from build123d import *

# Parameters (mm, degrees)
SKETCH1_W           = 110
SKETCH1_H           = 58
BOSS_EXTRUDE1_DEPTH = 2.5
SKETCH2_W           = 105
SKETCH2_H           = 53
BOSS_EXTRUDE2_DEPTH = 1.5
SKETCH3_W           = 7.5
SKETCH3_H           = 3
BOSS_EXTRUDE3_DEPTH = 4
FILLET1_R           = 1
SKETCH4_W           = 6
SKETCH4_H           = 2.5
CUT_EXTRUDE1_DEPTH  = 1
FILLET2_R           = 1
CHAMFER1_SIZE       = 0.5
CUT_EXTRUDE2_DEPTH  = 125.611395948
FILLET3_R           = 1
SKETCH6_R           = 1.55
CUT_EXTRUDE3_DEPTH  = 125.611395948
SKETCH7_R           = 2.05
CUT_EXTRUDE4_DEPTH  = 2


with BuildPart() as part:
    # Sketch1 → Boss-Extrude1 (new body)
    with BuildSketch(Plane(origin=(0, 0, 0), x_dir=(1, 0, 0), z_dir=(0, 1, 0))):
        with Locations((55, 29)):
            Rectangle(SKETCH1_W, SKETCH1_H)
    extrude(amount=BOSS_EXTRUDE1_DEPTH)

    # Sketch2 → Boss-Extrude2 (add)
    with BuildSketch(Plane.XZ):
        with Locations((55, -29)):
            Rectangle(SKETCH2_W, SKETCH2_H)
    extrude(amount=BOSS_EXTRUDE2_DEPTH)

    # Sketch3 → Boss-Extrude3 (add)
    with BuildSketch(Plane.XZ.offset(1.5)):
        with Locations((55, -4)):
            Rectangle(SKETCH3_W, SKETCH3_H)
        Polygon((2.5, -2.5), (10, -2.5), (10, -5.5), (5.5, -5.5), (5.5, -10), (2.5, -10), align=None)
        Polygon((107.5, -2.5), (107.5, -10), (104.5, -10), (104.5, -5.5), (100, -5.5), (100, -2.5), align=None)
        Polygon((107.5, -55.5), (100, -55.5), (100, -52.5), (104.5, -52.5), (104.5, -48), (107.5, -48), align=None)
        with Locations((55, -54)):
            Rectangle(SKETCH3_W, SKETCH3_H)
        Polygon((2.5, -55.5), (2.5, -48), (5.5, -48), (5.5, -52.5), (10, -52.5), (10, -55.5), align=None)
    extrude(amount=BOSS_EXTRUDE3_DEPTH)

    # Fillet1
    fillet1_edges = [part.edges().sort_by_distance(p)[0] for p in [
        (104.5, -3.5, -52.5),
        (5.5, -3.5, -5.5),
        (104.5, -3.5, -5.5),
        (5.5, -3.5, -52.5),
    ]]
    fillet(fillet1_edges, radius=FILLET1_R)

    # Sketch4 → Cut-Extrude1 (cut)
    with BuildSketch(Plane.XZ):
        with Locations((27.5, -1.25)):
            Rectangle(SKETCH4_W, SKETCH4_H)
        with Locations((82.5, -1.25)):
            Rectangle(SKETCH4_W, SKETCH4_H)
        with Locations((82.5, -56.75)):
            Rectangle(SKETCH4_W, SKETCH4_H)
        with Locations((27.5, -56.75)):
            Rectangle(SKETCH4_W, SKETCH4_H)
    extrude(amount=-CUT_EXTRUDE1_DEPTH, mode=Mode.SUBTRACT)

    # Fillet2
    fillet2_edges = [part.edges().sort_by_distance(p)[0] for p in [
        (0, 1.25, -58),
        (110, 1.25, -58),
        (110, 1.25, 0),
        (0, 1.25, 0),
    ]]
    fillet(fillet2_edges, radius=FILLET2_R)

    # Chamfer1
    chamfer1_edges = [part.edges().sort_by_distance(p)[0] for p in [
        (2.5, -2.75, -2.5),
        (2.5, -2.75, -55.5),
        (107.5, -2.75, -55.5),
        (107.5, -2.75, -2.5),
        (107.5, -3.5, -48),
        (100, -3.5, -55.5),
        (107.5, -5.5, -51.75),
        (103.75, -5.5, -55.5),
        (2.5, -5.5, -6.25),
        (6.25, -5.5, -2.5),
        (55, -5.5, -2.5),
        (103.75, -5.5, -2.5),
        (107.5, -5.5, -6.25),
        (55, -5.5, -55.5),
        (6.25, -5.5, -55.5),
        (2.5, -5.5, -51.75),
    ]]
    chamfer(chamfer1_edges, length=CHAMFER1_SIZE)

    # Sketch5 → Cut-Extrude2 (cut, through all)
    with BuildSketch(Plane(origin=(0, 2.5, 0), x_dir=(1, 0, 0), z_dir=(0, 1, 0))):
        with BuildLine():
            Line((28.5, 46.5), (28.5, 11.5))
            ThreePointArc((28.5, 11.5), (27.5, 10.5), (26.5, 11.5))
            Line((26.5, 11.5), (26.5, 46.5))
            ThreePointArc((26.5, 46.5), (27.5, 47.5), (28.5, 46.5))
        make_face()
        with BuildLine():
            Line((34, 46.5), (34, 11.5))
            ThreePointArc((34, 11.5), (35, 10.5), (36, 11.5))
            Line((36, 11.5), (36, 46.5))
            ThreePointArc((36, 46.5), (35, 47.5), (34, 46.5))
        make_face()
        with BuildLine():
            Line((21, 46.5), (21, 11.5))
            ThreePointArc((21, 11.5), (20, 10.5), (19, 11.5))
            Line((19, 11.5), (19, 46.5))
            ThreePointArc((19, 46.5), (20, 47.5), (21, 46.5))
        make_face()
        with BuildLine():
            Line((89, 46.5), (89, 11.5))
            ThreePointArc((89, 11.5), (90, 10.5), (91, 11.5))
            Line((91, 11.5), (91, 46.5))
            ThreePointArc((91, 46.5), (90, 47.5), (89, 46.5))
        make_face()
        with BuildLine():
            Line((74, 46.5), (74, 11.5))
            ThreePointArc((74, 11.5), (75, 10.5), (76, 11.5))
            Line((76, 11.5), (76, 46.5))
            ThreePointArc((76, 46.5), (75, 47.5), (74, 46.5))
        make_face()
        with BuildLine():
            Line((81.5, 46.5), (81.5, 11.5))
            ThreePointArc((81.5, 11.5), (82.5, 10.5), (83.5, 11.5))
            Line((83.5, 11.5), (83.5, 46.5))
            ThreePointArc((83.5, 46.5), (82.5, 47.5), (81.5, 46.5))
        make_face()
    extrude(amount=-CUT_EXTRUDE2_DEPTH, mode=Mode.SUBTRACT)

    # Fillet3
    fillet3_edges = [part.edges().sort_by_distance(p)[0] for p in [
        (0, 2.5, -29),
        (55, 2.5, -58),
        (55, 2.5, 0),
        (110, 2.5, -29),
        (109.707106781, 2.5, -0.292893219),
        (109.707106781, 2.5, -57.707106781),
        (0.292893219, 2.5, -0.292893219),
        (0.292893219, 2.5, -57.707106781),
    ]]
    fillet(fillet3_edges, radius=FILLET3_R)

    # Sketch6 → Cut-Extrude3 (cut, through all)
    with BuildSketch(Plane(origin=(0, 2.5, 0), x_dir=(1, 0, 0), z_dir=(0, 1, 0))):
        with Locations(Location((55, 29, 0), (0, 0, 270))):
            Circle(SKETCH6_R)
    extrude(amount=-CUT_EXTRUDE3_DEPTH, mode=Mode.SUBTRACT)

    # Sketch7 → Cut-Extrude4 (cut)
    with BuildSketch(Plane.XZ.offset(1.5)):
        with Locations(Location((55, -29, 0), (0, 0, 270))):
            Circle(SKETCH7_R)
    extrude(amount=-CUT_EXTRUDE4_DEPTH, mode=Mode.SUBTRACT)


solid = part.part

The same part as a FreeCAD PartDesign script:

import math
import FreeCAD as App
import Part
import Sketcher


def edges_at(feature, points):
    """Names of the edges that pass closest to the given points."""
    edges = feature.Shape.Edges
    near = lambda p: min(range(len(edges)), key=lambda i: edges[i].distToShape(Part.Vertex(*p))[0])
    return sorted({f"Edge{near(p) + 1}" for p in points})

doc = App.newDocument("Part")
body = doc.addObject("PartDesign::Body", "Body")

# Sketch on XZ plane
sketch1 = body.newObject("Sketcher::SketchObject", "Sketch")
sketch1.AttachmentSupport = (doc.getObject("XZ_Plane"), [""])
sketch1.MapMode = "FlatFace"
sketch1.addGeometry(Part.LineSegment(App.Vector(0, -58, 0), App.Vector(0, 0, 0)), False)
sketch1.addGeometry(Part.LineSegment(App.Vector(0, 0, 0), App.Vector(110, 0, 0)), False)
sketch1.addGeometry(Part.LineSegment(App.Vector(110, 0, 0), App.Vector(110, -58, 0)), False)
sketch1.addGeometry(Part.LineSegment(App.Vector(110, -58, 0), App.Vector(0, -58, 0)), False)
sketch1.addConstraint(Sketcher.Constraint("Coincident", 0, 2, 1, 1))
sketch1.addConstraint(Sketcher.Constraint("Coincident", 1, 2, 2, 1))
sketch1.addConstraint(Sketcher.Constraint("Coincident", 2, 2, 3, 1))
sketch1.addConstraint(Sketcher.Constraint("Coincident", 3, 2, 0, 1))
sketch1.addConstraint(Sketcher.Constraint("Vertical", 0))
sketch1.addConstraint(Sketcher.Constraint("Horizontal", 1))
sketch1.addConstraint(Sketcher.Constraint("Vertical", 2))
sketch1.addConstraint(Sketcher.Constraint("Horizontal", 3))
sketch1.addConstraint(Sketcher.Constraint("Coincident", 0, 2, -1, 1))
sketch1.addConstraint(Sketcher.Constraint("DistanceX", 1, 1, 1, 2, 110.0))
sketch1.addConstraint(Sketcher.Constraint("DistanceY", 0, 1, 0, 2, 58.0))
pad1 = body.newObject("PartDesign::Pad", "Pad")
pad1.Profile = sketch1
pad1.Length = 2.5
pad1.Reversed = True

# Sketch on XZ plane
sketch2 = body.newObject("Sketcher::SketchObject", "Sketch001")
sketch2.AttachmentSupport = (doc.getObject("XZ_Plane"), [""])
sketch2.MapMode = "FlatFace"
sketch2.addGeometry(Part.LineSegment(App.Vector(2, -2, 0), App.Vector(2, -56, 0)), False)
sketch2.addGeometry(Part.LineSegment(App.Vector(2, -56, 0), App.Vector(108, -56, 0)), False)
sketch2.addGeometry(Part.LineSegment(App.Vector(108, -56, 0), App.Vector(108, -2, 0)), False)
sketch2.addGeometry(Part.LineSegment(App.Vector(108, -2, 0), App.Vector(2, -2, 0)), False)
sketch2.addConstraint(Sketcher.Constraint("Coincident", 0, 2, 1, 1))
sketch2.addConstraint(Sketcher.Constraint("Coincident", 1, 2, 2, 1))
sketch2.addConstraint(Sketcher.Constraint("Coincident", 2, 2, 3, 1))
sketch2.addConstraint(Sketcher.Constraint("Coincident", 3, 2, 0, 1))
sketch2.addConstraint(Sketcher.Constraint("Vertical", 0))
sketch2.addConstraint(Sketcher.Constraint("Horizontal", 1))
sketch2.addConstraint(Sketcher.Constraint("Vertical", 2))
sketch2.addConstraint(Sketcher.Constraint("Horizontal", 3))
sketch2.addConstraint(Sketcher.Constraint("DistanceX", 1, 1, 1, 2, 105.0))
sketch2.addConstraint(Sketcher.Constraint("DistanceY", 0, 2, 0, 1, 53.0))
sketch2.addConstraint(Sketcher.Constraint("DistanceX", -1, 1, 0, 2, 2.5))
sketch2.addConstraint(Sketcher.Constraint("DistanceY", 0, 2, -1, 1, 55.5))
pad2 = body.newObject("PartDesign::Pad", "Pad001")
pad2.Profile = sketch2
pad2.Length = 1.5

# Sketch on XZ plane
sketch3 = body.newObject("Sketcher::SketchObject", "Sketch002")
sketch3.AttachmentSupport = (doc.getObject("XZ_Plane"), [""])
sketch3.MapMode = "FlatFace"
sketch3.AttachmentOffset = App.Placement(App.Vector(0, 0, 1.5), App.Rotation())
sketch3.addGeometry(Part.LineSegment(App.Vector(51.2, -2.5, 0), App.Vector(51.2, -5.5, 0)), False)
sketch3.addGeometry(Part.LineSegment(App.Vector(51.2, -5.5, 0), App.Vector(58.8, -5.5, 0)), False)
sketch3.addGeometry(Part.LineSegment(App.Vector(58.8, -5.5, 0), App.Vector(58.8, -2.5, 0)), False)
sketch3.addGeometry(Part.LineSegment(App.Vector(58.8, -2.5, 0), App.Vector(51.2, -2.5, 0)), False)
sketch3.addGeometry(Part.LineSegment(App.Vector(10, -2.5, 0), App.Vector(2.5, -2.5, 0)), False)
sketch3.addGeometry(Part.LineSegment(App.Vector(2.5, -2.5, 0), App.Vector(2.5, -10, 0)), False)
sketch3.addGeometry(Part.LineSegment(App.Vector(2.5, -10, 0), App.Vector(5.5, -10, 0)), False)
sketch3.addGeometry(Part.LineSegment(App.Vector(5.5, -10, 0), App.Vector(5.5, -5.5, 0)), False)
sketch3.addGeometry(Part.LineSegment(App.Vector(5.5, -5.5, 0), App.Vector(10, -5.5, 0)), False)
sketch3.addGeometry(Part.LineSegment(App.Vector(10, -5.5, 0), App.Vector(10, -2.5, 0)), False)
sketch3.addGeometry(Part.LineSegment(App.Vector(107.5, -10, 0), App.Vector(107.5, -2.5, 0)), False)
sketch3.addGeometry(Part.LineSegment(App.Vector(107.5, -2.5, 0), App.Vector(100, -2.5, 0)), False)
sketch3.addGeometry(Part.LineSegment(App.Vector(100, -2.5, 0), App.Vector(100, -5.5, 0)), False)
sketch3.addGeometry(Part.LineSegment(App.Vector(100, -5.5, 0), App.Vector(104.5, -5.5, 0)), False)
sketch3.addGeometry(Part.LineSegment(App.Vector(104.5, -5.5, 0), App.Vector(104.5, -10, 0)), False)
sketch3.addGeometry(Part.LineSegment(App.Vector(104.5, -10, 0), App.Vector(107.5, -10, 0)), False)
sketch3.addGeometry(Part.LineSegment(App.Vector(100, -55.5, 0), App.Vector(107.5, -55.5, 0)), False)
sketch3.addGeometry(Part.LineSegment(App.Vector(107.5, -55.5, 0), App.Vector(107.5, -48, 0)), False)
sketch3.addGeometry(Part.LineSegment(App.Vector(107.5, -48, 0), App.Vector(104.5, -48, 0)), False)
sketch3.addGeometry(Part.LineSegment(App.Vector(104.5, -48, 0), App.Vector(104.5, -52.5, 0)), False)
sketch3.addGeometry(Part.LineSegment(App.Vector(104.5, -52.5, 0), App.Vector(100, -52.5, 0)), False)
sketch3.addGeometry(Part.LineSegment(App.Vector(100, -52.5, 0), App.Vector(100, -55.5, 0)), False)
sketch3.addGeometry(Part.LineSegment(App.Vector(51.2, -52.5, 0), App.Vector(51.2, -55.5, 0)), False)
sketch3.addGeometry(Part.LineSegment(App.Vector(51.2, -55.5, 0), App.Vector(58.8, -55.5, 0)), False)
sketch3.addGeometry(Part.LineSegment(App.Vector(58.8, -55.5, 0), App.Vector(58.8, -52.5, 0)), False)
sketch3.addGeometry(Part.LineSegment(App.Vector(58.8, -52.5, 0), App.Vector(51.2, -52.5, 0)), False)
sketch3.addGeometry(Part.LineSegment(App.Vector(2.5, -48, 0), App.Vector(2.5, -55.5, 0)), False)
sketch3.addGeometry(Part.LineSegment(App.Vector(2.5, -55.5, 0), App.Vector(10, -55.5, 0)), False)
sketch3.addGeometry(Part.LineSegment(App.Vector(10, -55.5, 0), App.Vector(10, -52.5, 0)), False)
sketch3.addGeometry(Part.LineSegment(App.Vector(10, -52.5, 0), App.Vector(5.5, -52.5, 0)), False)
sketch3.addGeometry(Part.LineSegment(App.Vector(5.5, -52.5, 0), App.Vector(5.5, -48, 0)), False)
sketch3.addGeometry(Part.LineSegment(App.Vector(5.5, -48, 0), App.Vector(2.5, -48, 0)), False)
sketch3.addConstraint(Sketcher.Constraint("Coincident", 0, 2, 1, 1))
sketch3.addConstraint(Sketcher.Constraint("Coincident", 1, 2, 2, 1))
sketch3.addConstraint(Sketcher.Constraint("Coincident", 2, 2, 3, 1))
sketch3.addConstraint(Sketcher.Constraint("Coincident", 3, 2, 0, 1))
sketch3.addConstraint(Sketcher.Constraint("Coincident", 4, 2, 5, 1))
sketch3.addConstraint(Sketcher.Constraint("Coincident", 5, 2, 6, 1))
sketch3.addConstraint(Sketcher.Constraint("Coincident", 6, 2, 7, 1))
sketch3.addConstraint(Sketcher.Constraint("Coincident", 7, 2, 8, 1))
sketch3.addConstraint(Sketcher.Constraint("Coincident", 8, 2, 9, 1))
sketch3.addConstraint(Sketcher.Constraint("Coincident", 9, 2, 4, 1))
sketch3.addConstraint(Sketcher.Constraint("Coincident", 10, 2, 11, 1))
sketch3.addConstraint(Sketcher.Constraint("Coincident", 11, 2, 12, 1))
sketch3.addConstraint(Sketcher.Constraint("Coincident", 12, 2, 13, 1))
sketch3.addConstraint(Sketcher.Constraint("Coincident", 13, 2, 14, 1))
sketch3.addConstraint(Sketcher.Constraint("Coincident", 14, 2, 15, 1))
sketch3.addConstraint(Sketcher.Constraint("Coincident", 15, 2, 10, 1))
sketch3.addConstraint(Sketcher.Constraint("Coincident", 16, 2, 17, 1))
sketch3.addConstraint(Sketcher.Constraint("Coincident", 17, 2, 18, 1))
sketch3.addConstraint(Sketcher.Constraint("Coincident", 18, 2, 19, 1))
sketch3.addConstraint(Sketcher.Constraint("Coincident", 19, 2, 20, 1))
sketch3.addConstraint(Sketcher.Constraint("Coincident", 20, 2, 21, 1))
sketch3.addConstraint(Sketcher.Constraint("Coincident", 21, 2, 16, 1))
sketch3.addConstraint(Sketcher.Constraint("Coincident", 22, 2, 23, 1))
sketch3.addConstraint(Sketcher.Constraint("Coincident", 23, 2, 24, 1))
sketch3.addConstraint(Sketcher.Constraint("Coincident", 24, 2, 25, 1))
sketch3.addConstraint(Sketcher.Constraint("Coincident", 25, 2, 22, 1))
sketch3.addConstraint(Sketcher.Constraint("Coincident", 26, 2, 27, 1))
sketch3.addConstraint(Sketcher.Constraint("Coincident", 27, 2, 28, 1))
sketch3.addConstraint(Sketcher.Constraint("Coincident", 28, 2, 29, 1))
sketch3.addConstraint(Sketcher.Constraint("Coincident", 29, 2, 30, 1))
sketch3.addConstraint(Sketcher.Constraint("Coincident", 30, 2, 31, 1))
sketch3.addConstraint(Sketcher.Constraint("Coincident", 31, 2, 26, 1))
sketch3.addConstraint(Sketcher.Constraint("Vertical", 0))
sketch3.addConstraint(Sketcher.Constraint("Horizontal", 1))
sketch3.addConstraint(Sketcher.Constraint("Vertical", 2))
sketch3.addConstraint(Sketcher.Constraint("Horizontal", 3))
sketch3.addConstraint(Sketcher.Constraint("Horizontal", 4))
sketch3.addConstraint(Sketcher.Constraint("Vertical", 5))
sketch3.addConstraint(Sketcher.Constraint("Horizontal", 6))
sketch3.addConstraint(Sketcher.Constraint("Vertical", 7))
sketch3.addConstraint(Sketcher.Constraint("Horizontal", 8))
sketch3.addConstraint(Sketcher.Constraint("Vertical", 9))
sketch3.addConstraint(Sketcher.Constraint("Vertical", 10))
sketch3.addConstraint(Sketcher.Constraint("Horizontal", 11))
sketch3.addConstraint(Sketcher.Constraint("Vertical", 12))
sketch3.addConstraint(Sketcher.Constraint("Horizontal", 13))
sketch3.addConstraint(Sketcher.Constraint("Vertical", 14))
sketch3.addConstraint(Sketcher.Constraint("Horizontal", 15))
sketch3.addConstraint(Sketcher.Constraint("Horizontal", 16))
sketch3.addConstraint(Sketcher.Constraint("Vertical", 17))
sketch3.addConstraint(Sketcher.Constraint("Horizontal", 18))
sketch3.addConstraint(Sketcher.Constraint("Vertical", 19))
sketch3.addConstraint(Sketcher.Constraint("Horizontal", 20))
sketch3.addConstraint(Sketcher.Constraint("Vertical", 21))
sketch3.addConstraint(Sketcher.Constraint("Vertical", 22))
sketch3.addConstraint(Sketcher.Constraint("Horizontal", 23))
sketch3.addConstraint(Sketcher.Constraint("Vertical", 24))
sketch3.addConstraint(Sketcher.Constraint("Horizontal", 25))
sketch3.addConstraint(Sketcher.Constraint("Vertical", 26))
sketch3.addConstraint(Sketcher.Constraint("Horizontal", 27))
sketch3.addConstraint(Sketcher.Constraint("Vertical", 28))
sketch3.addConstraint(Sketcher.Constraint("Horizontal", 29))
sketch3.addConstraint(Sketcher.Constraint("Vertical", 30))
sketch3.addConstraint(Sketcher.Constraint("Horizontal", 31))
sketch3.addConstraint(Sketcher.Constraint("Horizontal", 3, 2, 4, 2))
sketch3.addConstraint(Sketcher.Constraint("Horizontal", 1, 2, 7, 2))
sketch3.addConstraint(Sketcher.Constraint("Horizontal", 9, 2, 10, 2))
sketch3.addConstraint(Sketcher.Constraint("Horizontal", 8, 2, 12, 2))
sketch3.addConstraint(Sketcher.Constraint("Horizontal", 6, 2, 14, 2))
sketch3.addConstraint(Sketcher.Constraint("Horizontal", 21, 2, 22, 2))
sketch3.addConstraint(Sketcher.Constraint("Horizontal", 20, 2, 24, 2))
sketch3.addConstraint(Sketcher.Constraint("Horizontal", 23, 2, 26, 2))
sketch3.addConstraint(Sketcher.Constraint("Horizontal", 25, 2, 28, 2))
sketch3.addConstraint(Sketcher.Constraint("Horizontal", 18, 2, 30, 2))
sketch3.addConstraint(Sketcher.Constraint("Vertical", 15, 2, 16, 2))
sketch3.addConstraint(Sketcher.Constraint("Vertical", 14, 2, 18, 2))
sketch3.addConstraint(Sketcher.Constraint("Vertical", 12, 2, 20, 2))
sketch3.addConstraint(Sketcher.Constraint("Vertical", 3, 2, 22, 2))
sketch3.addConstraint(Sketcher.Constraint("Vertical", 2, 2, 23, 2))
sketch3.addConstraint(Sketcher.Constraint("Vertical", 5, 2, 26, 2))
sketch3.addConstraint(Sketcher.Constraint("Vertical", 9, 2, 27, 2))
sketch3.addConstraint(Sketcher.Constraint("Vertical", 7, 2, 29, 2))
sketch3.addConstraint(Sketcher.Constraint("Equal", 3, 4))
sketch3.addConstraint(Sketcher.Constraint("Equal", 4, 11))
sketch3.addConstraint(Sketcher.Constraint("Equal", 8, 13))
sketch3.addConstraint(Sketcher.Constraint("Equal", 31, 0))
sketch3.addConstraint(Sketcher.Constraint("Equal", 27, 5))
sketch3.addConstraint(Sketcher.Constraint("Equal", 10, 17))
sketch3.addConstraint(Sketcher.Constraint("Equal", 14, 19))
sketch3.addConstraint(Sketcher.Constraint("DistanceX", 6, 1, 6, 2, 3.0))
sketch3.addConstraint(Sketcher.Constraint("DistanceX", 1, 1, 1, 2, 7.5))
sketch3.addConstraint(Sketcher.Constraint("DistanceY", 5, 2, -1, 1, 10.0))
sketch3.addConstraint(Sketcher.Constraint("DistanceX", -1, 1, 8, 2, 10.0))
sketch3.addConstraint(Sketcher.Constraint("DistanceX", -1, 1, 11, 2, 100.0))
sketch3.addConstraint(Sketcher.Constraint("DistanceY", 17, 2, -1, 1, 48.0))
sketch3.addConstraint(Sketcher.Constraint("DistanceX", -1, 1, 0, 2, 51.25))
pad3 = body.newObject("PartDesign::Pad", "Pad002")
pad3.Profile = sketch3
pad3.Length = 4
doc.recompute()

fillet = body.newObject("PartDesign::Fillet", "Fillet")
fillet.Base = (pad3, edges_at(pad3, [
    (104.5, -3.5, -52.5),
    (5.5, -3.5, -5.5),
    (104.5, -3.5, -5.5),
    (5.5, -3.5, -52.5),
]))
fillet.Radius = 1

# Sketch on XZ plane
sketch4 = body.newObject("Sketcher::SketchObject", "Sketch003")
sketch4.AttachmentSupport = (doc.getObject("XZ_Plane"), [""])
sketch4.MapMode = "FlatFace"
sketch4.addGeometry(Part.LineSegment(App.Vector(24.5, 0, 0), App.Vector(24.5, -2.5, 0)), False)
sketch4.addGeometry(Part.LineSegment(App.Vector(24.5, -2.5, 0), App.Vector(30.5, -2.5, 0)), False)
sketch4.addGeometry(Part.LineSegment(App.Vector(30.5, -2.5, 0), App.Vector(30.5, 0, 0)), False)
sketch4.addGeometry(Part.LineSegment(App.Vector(30.5, 0, 0), App.Vector(24.5, 0, 0)), False)
sketch4.addGeometry(Part.LineSegment(App.Vector(79.5, 0, 0), App.Vector(79.5, -2.5, 0)), False)
sketch4.addGeometry(Part.LineSegment(App.Vector(79.5, -2.5, 0), App.Vector(85.5, -2.5, 0)), False)
sketch4.addGeometry(Part.LineSegment(App.Vector(85.5, -2.5, 0), App.Vector(85.5, 0, 0)), False)
sketch4.addGeometry(Part.LineSegment(App.Vector(85.5, 0, 0), App.Vector(79.5, 0, 0)), False)
sketch4.addGeometry(Part.LineSegment(App.Vector(79.5, -55.5, 0), App.Vector(79.5, -58, 0)), False)
sketch4.addGeometry(Part.LineSegment(App.Vector(79.5, -58, 0), App.Vector(85.5, -58, 0)), False)
sketch4.addGeometry(Part.LineSegment(App.Vector(85.5, -58, 0), App.Vector(85.5, -55.5, 0)), False)
sketch4.addGeometry(Part.LineSegment(App.Vector(85.5, -55.5, 0), App.Vector(79.5, -55.5, 0)), False)
sketch4.addGeometry(Part.LineSegment(App.Vector(24.5, -55.5, 0), App.Vector(24.5, -58, 0)), False)
sketch4.addGeometry(Part.LineSegment(App.Vector(24.5, -58, 0), App.Vector(30.5, -58, 0)), False)
sketch4.addGeometry(Part.LineSegment(App.Vector(30.5, -58, 0), App.Vector(30.5, -55.5, 0)), False)
sketch4.addGeometry(Part.LineSegment(App.Vector(30.5, -55.5, 0), App.Vector(24.5, -55.5, 0)), False)
sketch4.addConstraint(Sketcher.Constraint("Coincident", 0, 2, 1, 1))
sketch4.addConstraint(Sketcher.Constraint("Coincident", 1, 2, 2, 1))
sketch4.addConstraint(Sketcher.Constraint("Coincident", 2, 2, 3, 1))
sketch4.addConstraint(Sketcher.Constraint("Coincident", 3, 2, 0, 1))
sketch4.addConstraint(Sketcher.Constraint("Coincident", 4, 2, 5, 1))
sketch4.addConstraint(Sketcher.Constraint("Coincident", 5, 2, 6, 1))
sketch4.addConstraint(Sketcher.Constraint("Coincident", 6, 2, 7, 1))
sketch4.addConstraint(Sketcher.Constraint("Coincident", 7, 2, 4, 1))
sketch4.addConstraint(Sketcher.Constraint("Coincident", 8, 2, 9, 1))
sketch4.addConstraint(Sketcher.Constraint("Coincident", 9, 2, 10, 1))
sketch4.addConstraint(Sketcher.Constraint("Coincident", 10, 2, 11, 1))
sketch4.addConstraint(Sketcher.Constraint("Coincident", 11, 2, 8, 1))
sketch4.addConstraint(Sketcher.Constraint("Coincident", 12, 2, 13, 1))
sketch4.addConstraint(Sketcher.Constraint("Coincident", 13, 2, 14, 1))
sketch4.addConstraint(Sketcher.Constraint("Coincident", 14, 2, 15, 1))
sketch4.addConstraint(Sketcher.Constraint("Coincident", 15, 2, 12, 1))
sketch4.addConstraint(Sketcher.Constraint("Vertical", 0))
sketch4.addConstraint(Sketcher.Constraint("Horizontal", 1))
sketch4.addConstraint(Sketcher.Constraint("Vertical", 2))
sketch4.addConstraint(Sketcher.Constraint("Horizontal", 3))
sketch4.addConstraint(Sketcher.Constraint("Vertical", 4))
sketch4.addConstraint(Sketcher.Constraint("Horizontal", 5))
sketch4.addConstraint(Sketcher.Constraint("Vertical", 6))
sketch4.addConstraint(Sketcher.Constraint("Horizontal", 7))
sketch4.addConstraint(Sketcher.Constraint("Vertical", 8))
sketch4.addConstraint(Sketcher.Constraint("Horizontal", 9))
sketch4.addConstraint(Sketcher.Constraint("Vertical", 10))
sketch4.addConstraint(Sketcher.Constraint("Horizontal", 11))
sketch4.addConstraint(Sketcher.Constraint("Vertical", 12))
sketch4.addConstraint(Sketcher.Constraint("Horizontal", 13))
sketch4.addConstraint(Sketcher.Constraint("Vertical", 14))
sketch4.addConstraint(Sketcher.Constraint("Horizontal", 15))
sketch4.addConstraint(Sketcher.Constraint("PointOnObject", 2, 2, -1))
sketch4.addConstraint(Sketcher.Constraint("PointOnObject", 6, 2, -1))
sketch4.addConstraint(Sketcher.Constraint("Horizontal", 1, 2, 4, 2))
sketch4.addConstraint(Sketcher.Constraint("Horizontal", 9, 2, 12, 2))
sketch4.addConstraint(Sketcher.Constraint("Horizontal", 11, 2, 14, 2))
sketch4.addConstraint(Sketcher.Constraint("Vertical", 7, 2, 8, 2))
sketch4.addConstraint(Sketcher.Constraint("Vertical", 6, 2, 9, 2))
sketch4.addConstraint(Sketcher.Constraint("Vertical", 3, 2, 12, 2))
sketch4.addConstraint(Sketcher.Constraint("Vertical", 2, 2, 13, 2))
sketch4.addConstraint(Sketcher.Constraint("Equal", 3, 5))
sketch4.addConstraint(Sketcher.Constraint("Equal", 6, 8))
sketch4.addConstraint(Sketcher.Constraint("DistanceX", 1, 1, 1, 2, 6.0))
sketch4.addConstraint(Sketcher.Constraint("DistanceY", 0, 2, 0, 1, 2.5))
sketch4.addConstraint(Sketcher.Constraint("DistanceY", 8, 2, -1, 1, 58.0))
sketch4.addConstraint(Sketcher.Constraint("DistanceX", 1, 2, 4, 2, 49.0))
sketch4.addConstraint(Sketcher.Constraint("DistanceX", -1, 1, 0, 2, 24.5))
pocket1 = body.newObject("PartDesign::Pocket", "Pocket")
pocket1.Profile = sketch4
pocket1.Length = 1
doc.recompute()

fillet2 = body.newObject("PartDesign::Fillet", "Fillet001")
fillet2.Base = (pocket1, edges_at(pocket1, [
    (0, 1.25, -58),
    (110, 1.25, -58),
    (110, 1.25, 0),
    (0, 1.25, 0),
]))
fillet2.Radius = 1
doc.recompute()

chamfer = body.newObject("PartDesign::Chamfer", "Chamfer")
chamfer.Base = (fillet2, edges_at(fillet2, [
    (2.5, -2.75, -2.5),
    (2.5, -2.75, -55.5),
    (107.5, -2.75, -55.5),
    (107.5, -2.75, -2.5),
    (107.5, -3.5, -48),
    (100, -3.5, -55.5),
    (107.5, -5.5, -51.75),
    (103.75, -5.5, -55.5),
    (2.5, -5.5, -6.25),
    (6.25, -5.5, -2.5),
    (55, -5.5, -2.5),
    (103.75, -5.5, -2.5),
    (107.5, -5.5, -6.25),
    (55, -5.5, -55.5),
    (6.25, -5.5, -55.5),
    (2.5, -5.5, -51.75),
]))
chamfer.Size = 0.5

# Sketch on XZ plane
sketch5 = body.newObject("Sketcher::SketchObject", "Sketch004")
sketch5.AttachmentSupport = (doc.getObject("XZ_Plane"), [""])
sketch5.MapMode = "FlatFace"
sketch5.AttachmentOffset = App.Placement(App.Vector(0, 0, -2.5), App.Rotation())
sketch5.addGeometry(Part.LineSegment(App.Vector(28.5, -11.5, 0), App.Vector(28.5, -46.5, 0)), False)
sketch5.addGeometry(Part.ArcOfCircle(Part.Circle(App.Vector(27.5, -46.5, 0), App.Vector(0, 0, 1), 1), math.radians(180), math.radians(360)), False)
sketch5.addGeometry(Part.LineSegment(App.Vector(26.5, -46.5, 0), App.Vector(26.5, -11.5, 0)), False)
sketch5.addGeometry(Part.ArcOfCircle(Part.Circle(App.Vector(27.5, -11.5, 0), App.Vector(0, 0, 1), 1), math.radians(0), math.radians(180)), False)
sketch5.addGeometry(Part.LineSegment(App.Vector(34, -46.5, 0), App.Vector(34, -11.5, 0)), False)
sketch5.addGeometry(Part.ArcOfCircle(Part.Circle(App.Vector(35, -11.5, 0), App.Vector(0, 0, 1), 1), math.radians(0), math.radians(180)), False)
sketch5.addGeometry(Part.LineSegment(App.Vector(36, -11.5, 0), App.Vector(36, -46.5, 0)), False)
sketch5.addGeometry(Part.ArcOfCircle(Part.Circle(App.Vector(35, -46.5, 0), App.Vector(0, 0, 1), 1), math.radians(180), math.radians(360)), False)
sketch5.addGeometry(Part.LineSegment(App.Vector(21, -11.5, 0), App.Vector(21, -46.5, 0)), False)
sketch5.addGeometry(Part.ArcOfCircle(Part.Circle(App.Vector(20, -46.5, 0), App.Vector(0, 0, 1), 1), math.radians(180), math.radians(360)), False)
sketch5.addGeometry(Part.LineSegment(App.Vector(19, -46.5, 0), App.Vector(19, -11.5, 0)), False)
sketch5.addGeometry(Part.ArcOfCircle(Part.Circle(App.Vector(20, -11.5, 0), App.Vector(0, 0, 1), 1), math.radians(0), math.radians(180)), False)
sketch5.addGeometry(Part.LineSegment(App.Vector(89, -46.5, 0), App.Vector(89, -11.5, 0)), False)
sketch5.addGeometry(Part.ArcOfCircle(Part.Circle(App.Vector(90, -11.5, 0), App.Vector(0, 0, 1), 1), math.radians(0), math.radians(180)), False)
sketch5.addGeometry(Part.LineSegment(App.Vector(91, -11.5, 0), App.Vector(91, -46.5, 0)), False)
sketch5.addGeometry(Part.ArcOfCircle(Part.Circle(App.Vector(90, -46.5, 0), App.Vector(0, 0, 1), 1), math.radians(180), math.radians(360)), False)
sketch5.addGeometry(Part.LineSegment(App.Vector(74, -46.5, 0), App.Vector(74, -11.5, 0)), False)
sketch5.addGeometry(Part.ArcOfCircle(Part.Circle(App.Vector(75, -11.5, 0), App.Vector(0, 0, 1), 1), math.radians(0), math.radians(180)), False)
sketch5.addGeometry(Part.LineSegment(App.Vector(76, -11.5, 0), App.Vector(76, -46.5, 0)), False)
sketch5.addGeometry(Part.ArcOfCircle(Part.Circle(App.Vector(75, -46.5, 0), App.Vector(0, 0, 1), 1), math.radians(180), math.radians(360)), False)
sketch5.addGeometry(Part.LineSegment(App.Vector(81.5, -46.5, 0), App.Vector(81.5, -11.5, 0)), False)
sketch5.addGeometry(Part.ArcOfCircle(Part.Circle(App.Vector(82.5, -11.5, 0), App.Vector(0, 0, 1), 1), math.radians(0), math.radians(180)), False)
sketch5.addGeometry(Part.LineSegment(App.Vector(83.5, -11.5, 0), App.Vector(83.5, -46.5, 0)), False)
sketch5.addGeometry(Part.ArcOfCircle(Part.Circle(App.Vector(82.5, -46.5, 0), App.Vector(0, 0, 1), 1), math.radians(180), math.radians(360)), False)
sketch5.addConstraint(Sketcher.Constraint("Tangent", 0, 2, 1, 2))
sketch5.addConstraint(Sketcher.Constraint("Tangent", 1, 1, 2, 1))
sketch5.addConstraint(Sketcher.Constraint("Tangent", 2, 2, 3, 2))
sketch5.addConstraint(Sketcher.Constraint("Tangent", 3, 1, 0, 1))
sketch5.addConstraint(Sketcher.Constraint("Tangent", 4, 2, 5, 2))
sketch5.addConstraint(Sketcher.Constraint("Tangent", 5, 1, 6, 1))
sketch5.addConstraint(Sketcher.Constraint("Tangent", 6, 2, 7, 2))
sketch5.addConstraint(Sketcher.Constraint("Tangent", 7, 1, 4, 1))
sketch5.addConstraint(Sketcher.Constraint("Tangent", 8, 2, 9, 2))
sketch5.addConstraint(Sketcher.Constraint("Tangent", 9, 1, 10, 1))
sketch5.addConstraint(Sketcher.Constraint("Tangent", 10, 2, 11, 2))
sketch5.addConstraint(Sketcher.Constraint("Tangent", 11, 1, 8, 1))
sketch5.addConstraint(Sketcher.Constraint("Tangent", 12, 2, 13, 2))
sketch5.addConstraint(Sketcher.Constraint("Tangent", 13, 1, 14, 1))
sketch5.addConstraint(Sketcher.Constraint("Tangent", 14, 2, 15, 2))
sketch5.addConstraint(Sketcher.Constraint("Tangent", 15, 1, 12, 1))
sketch5.addConstraint(Sketcher.Constraint("Tangent", 16, 2, 17, 2))
sketch5.addConstraint(Sketcher.Constraint("Tangent", 17, 1, 18, 1))
sketch5.addConstraint(Sketcher.Constraint("Tangent", 18, 2, 19, 2))
sketch5.addConstraint(Sketcher.Constraint("Tangent", 19, 1, 16, 1))
sketch5.addConstraint(Sketcher.Constraint("Tangent", 20, 2, 21, 2))
sketch5.addConstraint(Sketcher.Constraint("Tangent", 21, 1, 22, 1))
sketch5.addConstraint(Sketcher.Constraint("Tangent", 22, 2, 23, 2))
sketch5.addConstraint(Sketcher.Constraint("Tangent", 23, 1, 20, 1))
sketch5.addConstraint(Sketcher.Constraint("Vertical", 0))
sketch5.addConstraint(Sketcher.Constraint("Vertical", 2))
sketch5.addConstraint(Sketcher.Constraint("Vertical", 4))
sketch5.addConstraint(Sketcher.Constraint("Vertical", 6))
sketch5.addConstraint(Sketcher.Constraint("Vertical", 8))
sketch5.addConstraint(Sketcher.Constraint("Vertical", 10))
sketch5.addConstraint(Sketcher.Constraint("Vertical", 12))
sketch5.addConstraint(Sketcher.Constraint("Vertical", 14))
sketch5.addConstraint(Sketcher.Constraint("Vertical", 16))
sketch5.addConstraint(Sketcher.Constraint("Vertical", 18))
sketch5.addConstraint(Sketcher.Constraint("Vertical", 20))
sketch5.addConstraint(Sketcher.Constraint("Vertical", 22))
sketch5.addConstraint(Sketcher.Constraint("Equal", 3, 5))
sketch5.addConstraint(Sketcher.Constraint("Equal", 7, 9))
sketch5.addConstraint(Sketcher.Constraint("Equal", 11, 13))
sketch5.addConstraint(Sketcher.Constraint("Equal", 15, 17))
sketch5.addConstraint(Sketcher.Constraint("Equal", 19, 21))
sketch5.addConstraint(Sketcher.Constraint("Horizontal", 3, 3, 5, 3))
sketch5.addConstraint(Sketcher.Constraint("Horizontal", 1, 3, 7, 3))
sketch5.addConstraint(Sketcher.Constraint("Horizontal", 7, 3, 9, 3))
sketch5.addConstraint(Sketcher.Constraint("Horizontal", 5, 3, 11, 3))
sketch5.addConstraint(Sketcher.Constraint("Horizontal", 11, 3, 13, 3))
sketch5.addConstraint(Sketcher.Constraint("Horizontal", 9, 3, 15, 3))
sketch5.addConstraint(Sketcher.Constraint("Horizontal", 13, 3, 17, 3))
sketch5.addConstraint(Sketcher.Constraint("Horizontal", 15, 3, 19, 3))
sketch5.addConstraint(Sketcher.Constraint("Horizontal", 17, 3, 21, 3))
sketch5.addConstraint(Sketcher.Constraint("Horizontal", 19, 3, 23, 3))
sketch5.addConstraint(Sketcher.Constraint("Radius", 1, 1.0))
sketch5.addConstraint(Sketcher.Constraint("DistanceY", 0, 2, 0, 1, 35.0))
sketch5.addConstraint(Sketcher.Constraint("DistanceX", -1, 1, 5, 3, 35.0))
sketch5.addConstraint(Sketcher.Constraint("DistanceX", -1, 1, 9, 3, 20.0))
sketch5.addConstraint(Sketcher.Constraint("DistanceX", -1, 1, 13, 3, 90.0))
sketch5.addConstraint(Sketcher.Constraint("DistanceX", -1, 1, 17, 3, 75.0))
sketch5.addConstraint(Sketcher.Constraint("DistanceX", -1, 1, 1, 3, 27.5))
sketch5.addConstraint(Sketcher.Constraint("DistanceY", 1, 3, -1, 1, 46.5))
sketch5.addConstraint(Sketcher.Constraint("DistanceX", -1, 1, 21, 3, 82.5))
pocket2 = body.newObject("PartDesign::Pocket", "Pocket001")
pocket2.Profile = sketch5
pocket2.Type = "ThroughAll"
pocket2.Reversed = True
doc.recompute()

fillet3 = body.newObject("PartDesign::Fillet", "Fillet002")
fillet3.Base = (pocket2, edges_at(pocket2, [
    (0, 2.5, -29),
    (55, 2.5, -58),
    (55, 2.5, 0),
    (110, 2.5, -29),
    (109.707, 2.5, -0.293),
    (109.707, 2.5, -57.707),
    (0.293, 2.5, -0.293),
    (0.293, 2.5, -57.707),
]))
fillet3.Radius = 1

# Sketch on XZ plane
sketch6 = body.newObject("Sketcher::SketchObject", "Sketch005")
sketch6.AttachmentSupport = (doc.getObject("XZ_Plane"), [""])
sketch6.MapMode = "FlatFace"
sketch6.AttachmentOffset = App.Placement(App.Vector(0, 0, -2.5), App.Rotation())
sketch6.addGeometry(Part.Circle(App.Vector(55, -29, 0), App.Vector(0, 0, 1), 1.6), False)
sketch6.addConstraint(Sketcher.Constraint("Diameter", 0, 3.1))
sketch6.addConstraint(Sketcher.Constraint("DistanceX", -1, 1, 0, 3, 55.0))
sketch6.addConstraint(Sketcher.Constraint("DistanceY", 0, 3, -1, 1, 29.0))
pocket3 = body.newObject("PartDesign::Pocket", "Pocket002")
pocket3.Profile = sketch6
pocket3.Type = "ThroughAll"
pocket3.Reversed = True

# Sketch on XZ plane
sketch7 = body.newObject("Sketcher::SketchObject", "Sketch006")
sketch7.AttachmentSupport = (doc.getObject("XZ_Plane"), [""])
sketch7.MapMode = "FlatFace"
sketch7.AttachmentOffset = App.Placement(App.Vector(0, 0, 1.5), App.Rotation())
sketch7.addGeometry(Part.Circle(App.Vector(55, -29, 0), App.Vector(0, 0, 1), 2), False)
sketch7.addConstraint(Sketcher.Constraint("Diameter", 0, 4.1))
sketch7.addConstraint(Sketcher.Constraint("DistanceX", -1, 1, 0, 3, 55.0))
sketch7.addConstraint(Sketcher.Constraint("DistanceY", 0, 3, -1, 1, 29.0))
pocket4 = body.newObject("PartDesign::Pocket", "Pocket003")
pocket4.Profile = sketch7
pocket4.Length = 2

doc.recompute()
